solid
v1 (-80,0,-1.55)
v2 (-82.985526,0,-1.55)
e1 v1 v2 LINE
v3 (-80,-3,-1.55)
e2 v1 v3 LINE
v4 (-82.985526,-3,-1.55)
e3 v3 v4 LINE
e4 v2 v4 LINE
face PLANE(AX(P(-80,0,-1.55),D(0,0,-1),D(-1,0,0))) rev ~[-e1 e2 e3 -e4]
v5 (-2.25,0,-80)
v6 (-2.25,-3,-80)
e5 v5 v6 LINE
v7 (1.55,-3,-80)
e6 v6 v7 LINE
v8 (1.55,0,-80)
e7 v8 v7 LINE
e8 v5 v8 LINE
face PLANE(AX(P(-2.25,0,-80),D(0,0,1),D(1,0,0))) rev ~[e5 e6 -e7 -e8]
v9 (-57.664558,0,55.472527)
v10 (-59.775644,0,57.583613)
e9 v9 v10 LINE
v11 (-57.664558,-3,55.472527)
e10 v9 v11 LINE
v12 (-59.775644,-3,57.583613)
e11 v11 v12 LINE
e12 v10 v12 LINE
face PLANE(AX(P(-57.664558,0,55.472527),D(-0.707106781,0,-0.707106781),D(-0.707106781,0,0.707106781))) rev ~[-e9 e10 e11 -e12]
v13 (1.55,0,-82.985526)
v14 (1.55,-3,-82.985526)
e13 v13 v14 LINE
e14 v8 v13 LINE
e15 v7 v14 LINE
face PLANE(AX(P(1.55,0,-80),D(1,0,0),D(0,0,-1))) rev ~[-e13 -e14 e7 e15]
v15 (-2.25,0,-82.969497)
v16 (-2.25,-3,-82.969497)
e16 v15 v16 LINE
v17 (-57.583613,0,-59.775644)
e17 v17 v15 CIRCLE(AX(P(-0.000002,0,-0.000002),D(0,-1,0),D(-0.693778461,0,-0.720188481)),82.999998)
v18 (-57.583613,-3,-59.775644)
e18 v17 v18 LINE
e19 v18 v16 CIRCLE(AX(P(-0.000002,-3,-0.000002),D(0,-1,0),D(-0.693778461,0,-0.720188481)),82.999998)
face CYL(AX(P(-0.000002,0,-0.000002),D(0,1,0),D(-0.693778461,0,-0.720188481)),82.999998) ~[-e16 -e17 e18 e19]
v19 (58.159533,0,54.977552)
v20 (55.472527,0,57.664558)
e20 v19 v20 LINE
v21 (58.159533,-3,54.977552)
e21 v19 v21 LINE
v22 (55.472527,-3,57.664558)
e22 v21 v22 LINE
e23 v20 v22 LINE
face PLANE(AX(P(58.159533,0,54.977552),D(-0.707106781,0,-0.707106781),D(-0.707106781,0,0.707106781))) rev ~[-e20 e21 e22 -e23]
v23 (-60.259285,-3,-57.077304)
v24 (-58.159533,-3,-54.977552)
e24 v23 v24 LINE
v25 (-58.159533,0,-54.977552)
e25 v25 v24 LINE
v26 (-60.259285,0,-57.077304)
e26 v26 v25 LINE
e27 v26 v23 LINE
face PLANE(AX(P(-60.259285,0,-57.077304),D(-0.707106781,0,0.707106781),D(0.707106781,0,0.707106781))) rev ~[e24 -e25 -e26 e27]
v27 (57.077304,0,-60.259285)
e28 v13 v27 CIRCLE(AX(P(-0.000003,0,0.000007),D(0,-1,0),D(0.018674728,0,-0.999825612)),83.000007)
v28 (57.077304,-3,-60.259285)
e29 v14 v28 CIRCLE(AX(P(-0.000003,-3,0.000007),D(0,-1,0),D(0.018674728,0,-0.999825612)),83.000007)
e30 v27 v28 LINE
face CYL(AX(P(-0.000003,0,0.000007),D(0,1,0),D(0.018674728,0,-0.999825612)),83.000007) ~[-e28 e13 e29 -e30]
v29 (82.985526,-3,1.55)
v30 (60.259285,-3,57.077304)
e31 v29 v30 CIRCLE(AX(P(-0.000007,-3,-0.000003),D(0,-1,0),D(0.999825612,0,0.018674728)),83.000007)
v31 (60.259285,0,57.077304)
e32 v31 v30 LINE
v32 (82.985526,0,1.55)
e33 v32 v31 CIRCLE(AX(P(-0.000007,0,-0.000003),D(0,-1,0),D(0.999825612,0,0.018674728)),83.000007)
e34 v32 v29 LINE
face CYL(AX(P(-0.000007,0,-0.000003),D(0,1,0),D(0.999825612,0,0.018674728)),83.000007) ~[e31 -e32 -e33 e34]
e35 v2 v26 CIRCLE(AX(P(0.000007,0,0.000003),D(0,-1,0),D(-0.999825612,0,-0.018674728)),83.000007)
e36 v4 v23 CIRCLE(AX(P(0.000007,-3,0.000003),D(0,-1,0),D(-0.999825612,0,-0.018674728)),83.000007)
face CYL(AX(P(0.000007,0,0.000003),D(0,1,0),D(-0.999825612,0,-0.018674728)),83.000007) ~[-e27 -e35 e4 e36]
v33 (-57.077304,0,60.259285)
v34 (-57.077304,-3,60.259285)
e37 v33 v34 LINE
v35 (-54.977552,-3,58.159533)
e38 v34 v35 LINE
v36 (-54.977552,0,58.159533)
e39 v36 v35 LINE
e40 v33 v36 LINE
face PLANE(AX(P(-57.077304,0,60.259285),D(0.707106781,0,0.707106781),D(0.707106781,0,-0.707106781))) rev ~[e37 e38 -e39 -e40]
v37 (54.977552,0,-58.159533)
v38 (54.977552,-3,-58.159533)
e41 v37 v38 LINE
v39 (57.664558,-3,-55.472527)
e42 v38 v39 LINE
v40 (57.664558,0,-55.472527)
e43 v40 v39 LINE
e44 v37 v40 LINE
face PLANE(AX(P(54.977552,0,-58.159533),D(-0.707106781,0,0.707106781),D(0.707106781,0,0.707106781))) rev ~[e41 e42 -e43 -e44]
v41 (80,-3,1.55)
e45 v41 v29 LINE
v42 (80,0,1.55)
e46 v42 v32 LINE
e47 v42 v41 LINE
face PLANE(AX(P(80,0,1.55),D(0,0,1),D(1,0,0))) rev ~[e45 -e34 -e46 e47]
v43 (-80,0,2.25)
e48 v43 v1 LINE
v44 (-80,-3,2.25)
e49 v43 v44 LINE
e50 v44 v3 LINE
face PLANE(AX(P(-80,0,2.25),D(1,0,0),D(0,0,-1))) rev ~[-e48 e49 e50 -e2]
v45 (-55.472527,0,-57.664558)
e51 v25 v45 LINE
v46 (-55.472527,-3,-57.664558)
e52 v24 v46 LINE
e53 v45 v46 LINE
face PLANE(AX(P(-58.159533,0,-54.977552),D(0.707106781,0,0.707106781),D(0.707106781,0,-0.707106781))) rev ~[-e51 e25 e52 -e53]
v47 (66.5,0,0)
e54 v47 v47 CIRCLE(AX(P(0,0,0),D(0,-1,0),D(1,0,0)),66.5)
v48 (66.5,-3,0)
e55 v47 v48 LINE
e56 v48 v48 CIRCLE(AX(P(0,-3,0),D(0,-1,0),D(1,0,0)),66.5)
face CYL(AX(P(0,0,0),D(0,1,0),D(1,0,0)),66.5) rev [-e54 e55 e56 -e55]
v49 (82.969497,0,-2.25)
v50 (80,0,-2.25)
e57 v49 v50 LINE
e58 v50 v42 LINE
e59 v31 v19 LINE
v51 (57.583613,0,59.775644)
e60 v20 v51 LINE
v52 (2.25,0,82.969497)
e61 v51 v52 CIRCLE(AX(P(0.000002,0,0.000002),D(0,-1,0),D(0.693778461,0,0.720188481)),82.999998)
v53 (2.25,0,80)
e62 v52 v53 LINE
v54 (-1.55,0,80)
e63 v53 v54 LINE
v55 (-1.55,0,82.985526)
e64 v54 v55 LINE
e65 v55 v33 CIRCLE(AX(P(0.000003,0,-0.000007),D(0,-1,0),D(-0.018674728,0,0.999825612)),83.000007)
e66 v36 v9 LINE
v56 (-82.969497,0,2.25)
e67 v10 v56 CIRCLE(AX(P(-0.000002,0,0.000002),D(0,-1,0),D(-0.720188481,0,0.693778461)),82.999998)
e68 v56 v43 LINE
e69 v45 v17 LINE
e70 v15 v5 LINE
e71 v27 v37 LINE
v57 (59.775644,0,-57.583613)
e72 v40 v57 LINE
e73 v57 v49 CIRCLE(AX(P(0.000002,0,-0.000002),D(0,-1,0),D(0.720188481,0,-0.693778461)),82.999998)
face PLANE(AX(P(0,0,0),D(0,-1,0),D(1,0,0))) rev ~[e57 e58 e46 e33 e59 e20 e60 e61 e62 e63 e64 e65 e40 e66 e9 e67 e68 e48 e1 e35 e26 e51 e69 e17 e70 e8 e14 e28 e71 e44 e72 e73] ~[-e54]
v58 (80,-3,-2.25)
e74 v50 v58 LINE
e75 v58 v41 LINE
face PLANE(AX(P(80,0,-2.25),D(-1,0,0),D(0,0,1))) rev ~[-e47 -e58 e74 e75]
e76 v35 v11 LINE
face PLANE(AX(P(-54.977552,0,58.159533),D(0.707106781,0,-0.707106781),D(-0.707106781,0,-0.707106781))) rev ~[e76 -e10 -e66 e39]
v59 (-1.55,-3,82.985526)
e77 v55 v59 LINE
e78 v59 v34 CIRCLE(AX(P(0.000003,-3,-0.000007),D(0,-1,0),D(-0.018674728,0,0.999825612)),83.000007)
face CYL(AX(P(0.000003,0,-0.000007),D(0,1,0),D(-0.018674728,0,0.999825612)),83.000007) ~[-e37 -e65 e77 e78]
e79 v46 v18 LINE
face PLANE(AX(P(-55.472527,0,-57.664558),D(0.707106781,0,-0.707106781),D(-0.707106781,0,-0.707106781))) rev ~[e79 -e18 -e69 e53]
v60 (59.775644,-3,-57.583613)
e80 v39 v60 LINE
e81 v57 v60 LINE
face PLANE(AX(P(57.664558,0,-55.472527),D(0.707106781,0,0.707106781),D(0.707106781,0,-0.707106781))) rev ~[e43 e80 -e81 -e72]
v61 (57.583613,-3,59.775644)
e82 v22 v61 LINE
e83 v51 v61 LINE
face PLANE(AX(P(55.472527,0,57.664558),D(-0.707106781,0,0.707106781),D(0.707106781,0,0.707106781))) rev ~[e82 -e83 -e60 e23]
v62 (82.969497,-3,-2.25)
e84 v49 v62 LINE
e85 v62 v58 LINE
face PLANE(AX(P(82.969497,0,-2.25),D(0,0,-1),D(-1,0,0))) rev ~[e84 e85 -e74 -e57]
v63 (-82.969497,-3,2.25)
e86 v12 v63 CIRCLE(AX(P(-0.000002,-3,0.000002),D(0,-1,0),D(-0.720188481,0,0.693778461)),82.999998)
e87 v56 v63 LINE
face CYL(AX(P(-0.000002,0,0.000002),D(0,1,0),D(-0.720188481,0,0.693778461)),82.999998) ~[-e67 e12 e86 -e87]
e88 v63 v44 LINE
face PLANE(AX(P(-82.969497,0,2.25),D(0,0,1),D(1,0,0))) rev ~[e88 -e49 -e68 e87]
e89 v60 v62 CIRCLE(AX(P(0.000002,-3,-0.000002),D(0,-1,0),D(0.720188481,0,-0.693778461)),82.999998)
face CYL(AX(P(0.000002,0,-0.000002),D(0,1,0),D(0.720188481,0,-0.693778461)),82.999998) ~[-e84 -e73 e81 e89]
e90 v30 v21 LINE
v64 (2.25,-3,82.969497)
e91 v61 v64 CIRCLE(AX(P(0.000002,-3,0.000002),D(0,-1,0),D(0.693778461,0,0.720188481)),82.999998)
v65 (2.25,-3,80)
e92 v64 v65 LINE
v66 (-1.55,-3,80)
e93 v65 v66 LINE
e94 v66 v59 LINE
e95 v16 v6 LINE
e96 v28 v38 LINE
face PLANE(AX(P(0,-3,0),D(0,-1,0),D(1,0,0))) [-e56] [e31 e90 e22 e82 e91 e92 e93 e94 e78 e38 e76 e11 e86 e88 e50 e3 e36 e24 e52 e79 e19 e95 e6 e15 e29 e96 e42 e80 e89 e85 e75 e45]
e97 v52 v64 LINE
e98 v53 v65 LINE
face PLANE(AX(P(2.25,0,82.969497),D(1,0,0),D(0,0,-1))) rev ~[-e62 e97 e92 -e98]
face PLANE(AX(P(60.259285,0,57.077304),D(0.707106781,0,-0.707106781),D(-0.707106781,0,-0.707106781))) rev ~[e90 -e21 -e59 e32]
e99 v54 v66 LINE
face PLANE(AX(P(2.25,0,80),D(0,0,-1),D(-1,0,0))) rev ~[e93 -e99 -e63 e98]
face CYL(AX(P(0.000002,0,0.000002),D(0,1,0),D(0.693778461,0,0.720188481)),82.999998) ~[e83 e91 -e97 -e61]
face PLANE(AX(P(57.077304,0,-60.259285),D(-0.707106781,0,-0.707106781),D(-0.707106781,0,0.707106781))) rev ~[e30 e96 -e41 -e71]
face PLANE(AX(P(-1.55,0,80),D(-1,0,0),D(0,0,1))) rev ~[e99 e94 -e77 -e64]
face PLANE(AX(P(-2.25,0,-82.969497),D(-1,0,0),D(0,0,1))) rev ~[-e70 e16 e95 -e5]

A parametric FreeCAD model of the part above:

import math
import FreeCAD as App
import Part
import Sketcher
from FreeCAD import Vector
Q = App.Units.Quantity

doc = App.newDocument("Part")
body = doc.addObject("PartDesign::Body", "Body")

sketch1 = body.newObject("Sketcher::SketchObject", "Sketch")
sketch1.AttachmentSupport = (doc.getObject("XZ_Plane"), [""])
sketch1.MapMode = "FlatFace"
sketch1.addGeometry(Part.LineSegment(Vector(80, 1.6, 0), Vector(83, 1.6, 0)), False)
sketch1.addGeometry(Part.ArcOfCircle(Part.Circle(Vector(0, 0, 0), Vector(0, 0, 1), 83), math.radians(1), math.radians(43)), False)
sketch1.addGeometry(Part.LineSegment(Vector(60.3, 57.1, 0), Vector(58.2, 55, 0)), False)
sketch1.addGeometry(Part.LineSegment(Vector(58.2, 55, 0), Vector(55.5, 57.7, 0)), False)
sketch1.addGeometry(Part.LineSegment(Vector(55.5, 57.7, 0), Vector(57.6, 59.8, 0)), False)
sketch1.addGeometry(Part.ArcOfCircle(Part.Circle(Vector(0, 0, 0), Vector(0, 0, 1), 83), math.radians(46), math.radians(88)), False)
sketch1.addGeometry(Part.LineSegment(Vector(2.2, 83, 0), Vector(2.2, 80, 0)), False)
sketch1.addGeometry(Part.LineSegment(Vector(2.2, 80, 0), Vector(-1.6, 80, 0)), False)
sketch1.addGeometry(Part.LineSegment(Vector(-1.6, 80, 0), Vector(-1.6, 83, 0)), False)
sketch1.addGeometry(Part.ArcOfCircle(Part.Circle(Vector(0, 0, 0), Vector(0, 0, 1), 83), math.radians(91), math.radians(133)), False)
sketch1.addGeometry(Part.LineSegment(Vector(-57.1, 60.3, 0), Vector(-55, 58.2, 0)), False)
sketch1.addGeometry(Part.LineSegment(Vector(-55, 58.2, 0), Vector(-57.7, 55.5, 0)), False)
sketch1.addGeometry(Part.LineSegment(Vector(-57.7, 55.5, 0), Vector(-59.8, 57.6, 0)), False)
sketch1.addGeometry(Part.ArcOfCircle(Part.Circle(Vector(0, 0, 0), Vector(0, 0, 1), 83), math.radians(136), math.radians(178)), False)
sketch1.addGeometry(Part.LineSegment(Vector(-83, 2.2, 0), Vector(-80, 2.2, 0)), False)
sketch1.addGeometry(Part.LineSegment(Vector(-80, 2.2, 0), Vector(-80, -1.6, 0)), False)
sketch1.addGeometry(Part.LineSegment(Vector(-80, -1.6, 0), Vector(-83, -1.6, 0)), False)
sketch1.addGeometry(Part.ArcOfCircle(Part.Circle(Vector(0, 0, 0), Vector(0, 0, 1), 83), math.radians(-179), math.radians(-137)), False)
sketch1.addGeometry(Part.LineSegment(Vector(-60.3, -57.1, 0), Vector(-58.2, -55, 0)), False)
sketch1.addGeometry(Part.LineSegment(Vector(-58.2, -55, 0), Vector(-55.5, -57.7, 0)), False)
sketch1.addGeometry(Part.LineSegment(Vector(-55.5, -57.7, 0), Vector(-57.6, -59.8, 0)), False)
sketch1.addGeometry(Part.ArcOfCircle(Part.Circle(Vector(0, 0, 0), Vector(0, 0, 1), 83), math.radians(-134), math.radians(-92)), False)
sketch1.addGeometry(Part.LineSegment(Vector(-2.2, -83, 0), Vector(-2.2, -80, 0)), False)
sketch1.addGeometry(Part.LineSegment(Vector(-2.2, -80, 0), Vector(1.6, -80, 0)), False)
sketch1.addGeometry(Part.LineSegment(Vector(1.6, -80, 0), Vector(1.6, -83, 0)), False)
sketch1.addGeometry(Part.ArcOfCircle(Part.Circle(Vector(0, 0, 0), Vector(0, 0, 1), 83), math.radians(-89), math.radians(-47)), False)
sketch1.addGeometry(Part.LineSegment(Vector(57.1, -60.3, 0), Vector(55, -58.2, 0)), False)
sketch1.addGeometry(Part.LineSegment(Vector(55, -58.2, 0), Vector(57.7, -55.5, 0)), False)
sketch1.addGeometry(Part.LineSegment(Vector(57.7, -55.5, 0), Vector(59.8, -57.6, 0)), False)
sketch1.addGeometry(Part.ArcOfCircle(Part.Circle(Vector(0, 0, 0), Vector(0, 0, 1), 83), math.radians(-44), math.radians(-2)), False)
sketch1.addGeometry(Part.LineSegment(Vector(83, -2.2, 0), Vector(80, -2.2, 0)), False)
sketch1.addGeometry(Part.LineSegment(Vector(80, -2.2, 0), Vector(80, 1.6, 0)), False)
sketch1.addGeometry(Part.Circle(Vector(0, 0, 0), Vector(0, 0, 1), 66.5), False)
sketch1.addConstraint(Sketcher.Constraint("Coincident", 0, 2, 1, 1))
sketch1.addConstraint(Sketcher.Constraint("Coincident", 1, 2, 2, 1))
sketch1.addConstraint(Sketcher.Constraint("Coincident", 2, 2, 3, 1))
sketch1.addConstraint(Sketcher.Constraint("Coincident", 3, 2, 4, 1))
sketch1.addConstraint(Sketcher.Constraint("Coincident", 4, 2, 5, 1))
sketch1.addConstraint(Sketcher.Constraint("Coincident", 5, 2, 6, 1))
sketch1.addConstraint(Sketcher.Constraint("Coincident", 6, 2, 7, 1))
sketch1.addConstraint(Sketcher.Constraint("Coincident", 7, 2, 8, 1))
sketch1.addConstraint(Sketcher.Constraint("Coincident", 8, 2, 9, 1))
sketch1.addConstraint(Sketcher.Constraint("Coincident", 9, 2, 10, 1))
sketch1.addConstraint(Sketcher.Constraint("Coincident", 10, 2, 11, 1))
sketch1.addConstraint(Sketcher.Constraint("Coincident", 11, 2, 12, 1))
sketch1.addConstraint(Sketcher.Constraint("Coincident", 12, 2, 13, 1))
sketch1.addConstraint(Sketcher.Constraint("Coincident", 13, 2, 14, 1))
sketch1.addConstraint(Sketcher.Constraint("Coincident", 14, 2, 15, 1))
sketch1.addConstraint(Sketcher.Constraint("Coincident", 15, 2, 16, 1))
sketch1.addConstraint(Sketcher.Constraint("Coincident", 16, 2, 17, 1))
sketch1.addConstraint(Sketcher.Constraint("Coincident", 17, 2, 18, 1))
sketch1.addConstraint(Sketcher.Constraint("Coincident", 18, 2, 19, 1))
sketch1.addConstraint(Sketcher.Constraint("Coincident", 19, 2, 20, 1))
sketch1.addConstraint(Sketcher.Constraint("Coincident", 20, 2, 21, 1))
sketch1.addConstraint(Sketcher.Constraint("Coincident", 21, 2, 22, 1))
sketch1.addConstraint(Sketcher.Constraint("Coincident", 22, 2, 23, 1))
sketch1.addConstraint(Sketcher.Constraint("Coincident", 23, 2, 24, 1))
sketch1.addConstraint(Sketcher.Constraint("Coincident", 24, 2, 25, 1))
sketch1.addConstraint(Sketcher.Constraint("Coincident", 25, 2, 26, 1))
sketch1.addConstraint(Sketcher.Constraint("Coincident", 26, 2, 27, 1))
sketch1.addConstraint(Sketcher.Constraint("Coincident", 27, 2, 28, 1))
sketch1.addConstraint(Sketcher.Constraint("Coincident", 28, 2, 29, 1))
sketch1.addConstraint(Sketcher.Constraint("Coincident", 29, 2, 30, 1))
sketch1.addConstraint(Sketcher.Constraint("Coincident", 30, 2, 31, 1))
sketch1.addConstraint(Sketcher.Constraint("Coincident", 31, 2, 0, 1))
sketch1.addConstraint(Sketcher.Constraint("Horizontal", 0))
sketch1.addConstraint(Sketcher.Constraint("Vertical", 6))
sketch1.addConstraint(Sketcher.Constraint("Horizontal", 7))
sketch1.addConstraint(Sketcher.Constraint("Vertical", 8))
sketch1.addConstraint(Sketcher.Constraint("Horizontal", 14))
sketch1.addConstraint(Sketcher.Constraint("Vertical", 15))
sketch1.addConstraint(Sketcher.Constraint("Horizontal", 16))
sketch1.addConstraint(Sketcher.Constraint("Vertical", 22))
sketch1.addConstraint(Sketcher.Constraint("Horizontal", 23))
sketch1.addConstraint(Sketcher.Constraint("Vertical", 24))
sketch1.addConstraint(Sketcher.Constraint("Horizontal", 30))
sketch1.addConstraint(Sketcher.Constraint("Vertical", 31))
sketch1.addConstraint(Sketcher.Constraint("Coincident", 1, 3, -1, 1))
sketch1.addConstraint(Sketcher.Constraint("Coincident", 5, 3, -1, 1))
sketch1.addConstraint(Sketcher.Constraint("Coincident", 9, 3, -1, 1))
sketch1.addConstraint(Sketcher.Constraint("Coincident", 13, 3, -1, 1))
sketch1.addConstraint(Sketcher.Constraint("Coincident", 17, 3, -1, 1))
sketch1.addConstraint(Sketcher.Constraint("Coincident", 21, 3, -1, 1))
sketch1.addConstraint(Sketcher.Constraint("Coincident", 25, 3, -1, 1))
sketch1.addConstraint(Sketcher.Constraint("Coincident", 29, 3, -1, 1))
sketch1.addConstraint(Sketcher.Constraint("Coincident", 32, 3, -1, 1))
sketch1.addConstraint(Sketcher.Constraint("Equal", 1, 9))
sketch1.addConstraint(Sketcher.Constraint("Equal", 5, 13))
sketch1.addConstraint(Sketcher.Constraint("Equal", 9, 17))
sketch1.addConstraint(Sketcher.Constraint("Equal", 13, 21))
sketch1.addConstraint(Sketcher.Constraint("Equal", 17, 25))
sketch1.addConstraint(Sketcher.Constraint("Equal", 21, 29))
sketch1.addConstraint(Sketcher.Constraint("Symmetric", 2, 2, 18, 2, -1, 1))
sketch1.addConstraint(Sketcher.Constraint("Symmetric", 3, 2, 19, 2, -1, 1))
sketch1.addConstraint(Sketcher.Constraint("Symmetric", 6, 2, 22, 2, -1, 1))
sketch1.addConstraint(Sketcher.Constraint("Symmetric", 10, 2, 26, 2, -1, 1))
sketch1.addConstraint(Sketcher.Constraint("Symmetric", 11, 2, 27, 2, -1, 1))
sketch1.addConstraint(Sketcher.Constraint("Symmetric", 14, 2, 30, 2, -1, 1))
sketch1.addConstraint(Sketcher.Constraint("Perpendicular", 2, 3))
sketch1.addConstraint(Sketcher.Constraint("Perpendicular", 3, 4))
sketch1.addConstraint(Sketcher.Constraint("Perpendicular", 4, 10))
sketch1.addConstraint(Sketcher.Constraint("Perpendicular", 10, 11))
sketch1.addConstraint(Sketcher.Constraint("Perpendicular", 11, 12))
sketch1.addConstraint(Sketcher.Constraint("Perpendicular", 12, 18))
sketch1.addConstraint(Sketcher.Constraint("Perpendicular", 19, 20))
sketch1.addConstraint(Sketcher.Constraint("Perpendicular", 20, 26))
sketch1.addConstraint(Sketcher.Constraint("Perpendicular", 27, 28))
sketch1.addConstraint(Sketcher.Constraint("Equal", 0, 16))
sketch1.addConstraint(Sketcher.Constraint("Equal", 7, 23))
sketch1.addConstraint(Sketcher.Constraint("Equal", 30, 6))
sketch1.addConstraint(Sketcher.Constraint("Equal", 16, 8))
sketch1.addConstraint(Sketcher.Constraint("Equal", 23, 15))
sketch1.addConstraint(Sketcher.Constraint("Equal", 2, 10))
sketch1.addConstraint(Sketcher.Constraint("Equal", 3, 11))
sketch1.addConstraint(Sketcher.Constraint("Equal", 4, 12))
sketch1.addConstraint(Sketcher.Constraint("Diameter", 32, Q("133 mm")))
sketch1.addConstraint(Sketcher.Constraint("Angle", 2, Q("-135 deg")))
sketch1.addConstraint(Sketcher.Constraint("DistanceX", 7, 2, 7, 1, Q("3.8 mm")))
sketch1.addConstraint(Sketcher.Constraint("DistanceY", -1, 1, 6, 2, Q("80 mm")))
sketch1.addConstraint(Sketcher.Constraint("Distance", 3, Q("3.8 mm")))
sketch1.addConstraint(Sketcher.Constraint("DistanceY", -1, 1, 0, 2, Q("1.55 mm")))
sketch1.addConstraint(Sketcher.Constraint("Radius", 1, Q("83.000007 mm")))
sketch1.addConstraint(Sketcher.Constraint("Radius", 5, Q("82.999998 mm")))
sketch1.addConstraint(Sketcher.Constraint("DistanceX", 3, 2, 0, 2, Q("27.512999 mm")))
sketch1.addConstraint(Sketcher.Constraint("DistanceY", 17, 3, 2, 2, Q("54.977549 mm")))
pad1 = body.newObject("PartDesign::Pad", "Pad")
pad1.Profile = sketch1
pad1.Length = 3

doc.recompute()
